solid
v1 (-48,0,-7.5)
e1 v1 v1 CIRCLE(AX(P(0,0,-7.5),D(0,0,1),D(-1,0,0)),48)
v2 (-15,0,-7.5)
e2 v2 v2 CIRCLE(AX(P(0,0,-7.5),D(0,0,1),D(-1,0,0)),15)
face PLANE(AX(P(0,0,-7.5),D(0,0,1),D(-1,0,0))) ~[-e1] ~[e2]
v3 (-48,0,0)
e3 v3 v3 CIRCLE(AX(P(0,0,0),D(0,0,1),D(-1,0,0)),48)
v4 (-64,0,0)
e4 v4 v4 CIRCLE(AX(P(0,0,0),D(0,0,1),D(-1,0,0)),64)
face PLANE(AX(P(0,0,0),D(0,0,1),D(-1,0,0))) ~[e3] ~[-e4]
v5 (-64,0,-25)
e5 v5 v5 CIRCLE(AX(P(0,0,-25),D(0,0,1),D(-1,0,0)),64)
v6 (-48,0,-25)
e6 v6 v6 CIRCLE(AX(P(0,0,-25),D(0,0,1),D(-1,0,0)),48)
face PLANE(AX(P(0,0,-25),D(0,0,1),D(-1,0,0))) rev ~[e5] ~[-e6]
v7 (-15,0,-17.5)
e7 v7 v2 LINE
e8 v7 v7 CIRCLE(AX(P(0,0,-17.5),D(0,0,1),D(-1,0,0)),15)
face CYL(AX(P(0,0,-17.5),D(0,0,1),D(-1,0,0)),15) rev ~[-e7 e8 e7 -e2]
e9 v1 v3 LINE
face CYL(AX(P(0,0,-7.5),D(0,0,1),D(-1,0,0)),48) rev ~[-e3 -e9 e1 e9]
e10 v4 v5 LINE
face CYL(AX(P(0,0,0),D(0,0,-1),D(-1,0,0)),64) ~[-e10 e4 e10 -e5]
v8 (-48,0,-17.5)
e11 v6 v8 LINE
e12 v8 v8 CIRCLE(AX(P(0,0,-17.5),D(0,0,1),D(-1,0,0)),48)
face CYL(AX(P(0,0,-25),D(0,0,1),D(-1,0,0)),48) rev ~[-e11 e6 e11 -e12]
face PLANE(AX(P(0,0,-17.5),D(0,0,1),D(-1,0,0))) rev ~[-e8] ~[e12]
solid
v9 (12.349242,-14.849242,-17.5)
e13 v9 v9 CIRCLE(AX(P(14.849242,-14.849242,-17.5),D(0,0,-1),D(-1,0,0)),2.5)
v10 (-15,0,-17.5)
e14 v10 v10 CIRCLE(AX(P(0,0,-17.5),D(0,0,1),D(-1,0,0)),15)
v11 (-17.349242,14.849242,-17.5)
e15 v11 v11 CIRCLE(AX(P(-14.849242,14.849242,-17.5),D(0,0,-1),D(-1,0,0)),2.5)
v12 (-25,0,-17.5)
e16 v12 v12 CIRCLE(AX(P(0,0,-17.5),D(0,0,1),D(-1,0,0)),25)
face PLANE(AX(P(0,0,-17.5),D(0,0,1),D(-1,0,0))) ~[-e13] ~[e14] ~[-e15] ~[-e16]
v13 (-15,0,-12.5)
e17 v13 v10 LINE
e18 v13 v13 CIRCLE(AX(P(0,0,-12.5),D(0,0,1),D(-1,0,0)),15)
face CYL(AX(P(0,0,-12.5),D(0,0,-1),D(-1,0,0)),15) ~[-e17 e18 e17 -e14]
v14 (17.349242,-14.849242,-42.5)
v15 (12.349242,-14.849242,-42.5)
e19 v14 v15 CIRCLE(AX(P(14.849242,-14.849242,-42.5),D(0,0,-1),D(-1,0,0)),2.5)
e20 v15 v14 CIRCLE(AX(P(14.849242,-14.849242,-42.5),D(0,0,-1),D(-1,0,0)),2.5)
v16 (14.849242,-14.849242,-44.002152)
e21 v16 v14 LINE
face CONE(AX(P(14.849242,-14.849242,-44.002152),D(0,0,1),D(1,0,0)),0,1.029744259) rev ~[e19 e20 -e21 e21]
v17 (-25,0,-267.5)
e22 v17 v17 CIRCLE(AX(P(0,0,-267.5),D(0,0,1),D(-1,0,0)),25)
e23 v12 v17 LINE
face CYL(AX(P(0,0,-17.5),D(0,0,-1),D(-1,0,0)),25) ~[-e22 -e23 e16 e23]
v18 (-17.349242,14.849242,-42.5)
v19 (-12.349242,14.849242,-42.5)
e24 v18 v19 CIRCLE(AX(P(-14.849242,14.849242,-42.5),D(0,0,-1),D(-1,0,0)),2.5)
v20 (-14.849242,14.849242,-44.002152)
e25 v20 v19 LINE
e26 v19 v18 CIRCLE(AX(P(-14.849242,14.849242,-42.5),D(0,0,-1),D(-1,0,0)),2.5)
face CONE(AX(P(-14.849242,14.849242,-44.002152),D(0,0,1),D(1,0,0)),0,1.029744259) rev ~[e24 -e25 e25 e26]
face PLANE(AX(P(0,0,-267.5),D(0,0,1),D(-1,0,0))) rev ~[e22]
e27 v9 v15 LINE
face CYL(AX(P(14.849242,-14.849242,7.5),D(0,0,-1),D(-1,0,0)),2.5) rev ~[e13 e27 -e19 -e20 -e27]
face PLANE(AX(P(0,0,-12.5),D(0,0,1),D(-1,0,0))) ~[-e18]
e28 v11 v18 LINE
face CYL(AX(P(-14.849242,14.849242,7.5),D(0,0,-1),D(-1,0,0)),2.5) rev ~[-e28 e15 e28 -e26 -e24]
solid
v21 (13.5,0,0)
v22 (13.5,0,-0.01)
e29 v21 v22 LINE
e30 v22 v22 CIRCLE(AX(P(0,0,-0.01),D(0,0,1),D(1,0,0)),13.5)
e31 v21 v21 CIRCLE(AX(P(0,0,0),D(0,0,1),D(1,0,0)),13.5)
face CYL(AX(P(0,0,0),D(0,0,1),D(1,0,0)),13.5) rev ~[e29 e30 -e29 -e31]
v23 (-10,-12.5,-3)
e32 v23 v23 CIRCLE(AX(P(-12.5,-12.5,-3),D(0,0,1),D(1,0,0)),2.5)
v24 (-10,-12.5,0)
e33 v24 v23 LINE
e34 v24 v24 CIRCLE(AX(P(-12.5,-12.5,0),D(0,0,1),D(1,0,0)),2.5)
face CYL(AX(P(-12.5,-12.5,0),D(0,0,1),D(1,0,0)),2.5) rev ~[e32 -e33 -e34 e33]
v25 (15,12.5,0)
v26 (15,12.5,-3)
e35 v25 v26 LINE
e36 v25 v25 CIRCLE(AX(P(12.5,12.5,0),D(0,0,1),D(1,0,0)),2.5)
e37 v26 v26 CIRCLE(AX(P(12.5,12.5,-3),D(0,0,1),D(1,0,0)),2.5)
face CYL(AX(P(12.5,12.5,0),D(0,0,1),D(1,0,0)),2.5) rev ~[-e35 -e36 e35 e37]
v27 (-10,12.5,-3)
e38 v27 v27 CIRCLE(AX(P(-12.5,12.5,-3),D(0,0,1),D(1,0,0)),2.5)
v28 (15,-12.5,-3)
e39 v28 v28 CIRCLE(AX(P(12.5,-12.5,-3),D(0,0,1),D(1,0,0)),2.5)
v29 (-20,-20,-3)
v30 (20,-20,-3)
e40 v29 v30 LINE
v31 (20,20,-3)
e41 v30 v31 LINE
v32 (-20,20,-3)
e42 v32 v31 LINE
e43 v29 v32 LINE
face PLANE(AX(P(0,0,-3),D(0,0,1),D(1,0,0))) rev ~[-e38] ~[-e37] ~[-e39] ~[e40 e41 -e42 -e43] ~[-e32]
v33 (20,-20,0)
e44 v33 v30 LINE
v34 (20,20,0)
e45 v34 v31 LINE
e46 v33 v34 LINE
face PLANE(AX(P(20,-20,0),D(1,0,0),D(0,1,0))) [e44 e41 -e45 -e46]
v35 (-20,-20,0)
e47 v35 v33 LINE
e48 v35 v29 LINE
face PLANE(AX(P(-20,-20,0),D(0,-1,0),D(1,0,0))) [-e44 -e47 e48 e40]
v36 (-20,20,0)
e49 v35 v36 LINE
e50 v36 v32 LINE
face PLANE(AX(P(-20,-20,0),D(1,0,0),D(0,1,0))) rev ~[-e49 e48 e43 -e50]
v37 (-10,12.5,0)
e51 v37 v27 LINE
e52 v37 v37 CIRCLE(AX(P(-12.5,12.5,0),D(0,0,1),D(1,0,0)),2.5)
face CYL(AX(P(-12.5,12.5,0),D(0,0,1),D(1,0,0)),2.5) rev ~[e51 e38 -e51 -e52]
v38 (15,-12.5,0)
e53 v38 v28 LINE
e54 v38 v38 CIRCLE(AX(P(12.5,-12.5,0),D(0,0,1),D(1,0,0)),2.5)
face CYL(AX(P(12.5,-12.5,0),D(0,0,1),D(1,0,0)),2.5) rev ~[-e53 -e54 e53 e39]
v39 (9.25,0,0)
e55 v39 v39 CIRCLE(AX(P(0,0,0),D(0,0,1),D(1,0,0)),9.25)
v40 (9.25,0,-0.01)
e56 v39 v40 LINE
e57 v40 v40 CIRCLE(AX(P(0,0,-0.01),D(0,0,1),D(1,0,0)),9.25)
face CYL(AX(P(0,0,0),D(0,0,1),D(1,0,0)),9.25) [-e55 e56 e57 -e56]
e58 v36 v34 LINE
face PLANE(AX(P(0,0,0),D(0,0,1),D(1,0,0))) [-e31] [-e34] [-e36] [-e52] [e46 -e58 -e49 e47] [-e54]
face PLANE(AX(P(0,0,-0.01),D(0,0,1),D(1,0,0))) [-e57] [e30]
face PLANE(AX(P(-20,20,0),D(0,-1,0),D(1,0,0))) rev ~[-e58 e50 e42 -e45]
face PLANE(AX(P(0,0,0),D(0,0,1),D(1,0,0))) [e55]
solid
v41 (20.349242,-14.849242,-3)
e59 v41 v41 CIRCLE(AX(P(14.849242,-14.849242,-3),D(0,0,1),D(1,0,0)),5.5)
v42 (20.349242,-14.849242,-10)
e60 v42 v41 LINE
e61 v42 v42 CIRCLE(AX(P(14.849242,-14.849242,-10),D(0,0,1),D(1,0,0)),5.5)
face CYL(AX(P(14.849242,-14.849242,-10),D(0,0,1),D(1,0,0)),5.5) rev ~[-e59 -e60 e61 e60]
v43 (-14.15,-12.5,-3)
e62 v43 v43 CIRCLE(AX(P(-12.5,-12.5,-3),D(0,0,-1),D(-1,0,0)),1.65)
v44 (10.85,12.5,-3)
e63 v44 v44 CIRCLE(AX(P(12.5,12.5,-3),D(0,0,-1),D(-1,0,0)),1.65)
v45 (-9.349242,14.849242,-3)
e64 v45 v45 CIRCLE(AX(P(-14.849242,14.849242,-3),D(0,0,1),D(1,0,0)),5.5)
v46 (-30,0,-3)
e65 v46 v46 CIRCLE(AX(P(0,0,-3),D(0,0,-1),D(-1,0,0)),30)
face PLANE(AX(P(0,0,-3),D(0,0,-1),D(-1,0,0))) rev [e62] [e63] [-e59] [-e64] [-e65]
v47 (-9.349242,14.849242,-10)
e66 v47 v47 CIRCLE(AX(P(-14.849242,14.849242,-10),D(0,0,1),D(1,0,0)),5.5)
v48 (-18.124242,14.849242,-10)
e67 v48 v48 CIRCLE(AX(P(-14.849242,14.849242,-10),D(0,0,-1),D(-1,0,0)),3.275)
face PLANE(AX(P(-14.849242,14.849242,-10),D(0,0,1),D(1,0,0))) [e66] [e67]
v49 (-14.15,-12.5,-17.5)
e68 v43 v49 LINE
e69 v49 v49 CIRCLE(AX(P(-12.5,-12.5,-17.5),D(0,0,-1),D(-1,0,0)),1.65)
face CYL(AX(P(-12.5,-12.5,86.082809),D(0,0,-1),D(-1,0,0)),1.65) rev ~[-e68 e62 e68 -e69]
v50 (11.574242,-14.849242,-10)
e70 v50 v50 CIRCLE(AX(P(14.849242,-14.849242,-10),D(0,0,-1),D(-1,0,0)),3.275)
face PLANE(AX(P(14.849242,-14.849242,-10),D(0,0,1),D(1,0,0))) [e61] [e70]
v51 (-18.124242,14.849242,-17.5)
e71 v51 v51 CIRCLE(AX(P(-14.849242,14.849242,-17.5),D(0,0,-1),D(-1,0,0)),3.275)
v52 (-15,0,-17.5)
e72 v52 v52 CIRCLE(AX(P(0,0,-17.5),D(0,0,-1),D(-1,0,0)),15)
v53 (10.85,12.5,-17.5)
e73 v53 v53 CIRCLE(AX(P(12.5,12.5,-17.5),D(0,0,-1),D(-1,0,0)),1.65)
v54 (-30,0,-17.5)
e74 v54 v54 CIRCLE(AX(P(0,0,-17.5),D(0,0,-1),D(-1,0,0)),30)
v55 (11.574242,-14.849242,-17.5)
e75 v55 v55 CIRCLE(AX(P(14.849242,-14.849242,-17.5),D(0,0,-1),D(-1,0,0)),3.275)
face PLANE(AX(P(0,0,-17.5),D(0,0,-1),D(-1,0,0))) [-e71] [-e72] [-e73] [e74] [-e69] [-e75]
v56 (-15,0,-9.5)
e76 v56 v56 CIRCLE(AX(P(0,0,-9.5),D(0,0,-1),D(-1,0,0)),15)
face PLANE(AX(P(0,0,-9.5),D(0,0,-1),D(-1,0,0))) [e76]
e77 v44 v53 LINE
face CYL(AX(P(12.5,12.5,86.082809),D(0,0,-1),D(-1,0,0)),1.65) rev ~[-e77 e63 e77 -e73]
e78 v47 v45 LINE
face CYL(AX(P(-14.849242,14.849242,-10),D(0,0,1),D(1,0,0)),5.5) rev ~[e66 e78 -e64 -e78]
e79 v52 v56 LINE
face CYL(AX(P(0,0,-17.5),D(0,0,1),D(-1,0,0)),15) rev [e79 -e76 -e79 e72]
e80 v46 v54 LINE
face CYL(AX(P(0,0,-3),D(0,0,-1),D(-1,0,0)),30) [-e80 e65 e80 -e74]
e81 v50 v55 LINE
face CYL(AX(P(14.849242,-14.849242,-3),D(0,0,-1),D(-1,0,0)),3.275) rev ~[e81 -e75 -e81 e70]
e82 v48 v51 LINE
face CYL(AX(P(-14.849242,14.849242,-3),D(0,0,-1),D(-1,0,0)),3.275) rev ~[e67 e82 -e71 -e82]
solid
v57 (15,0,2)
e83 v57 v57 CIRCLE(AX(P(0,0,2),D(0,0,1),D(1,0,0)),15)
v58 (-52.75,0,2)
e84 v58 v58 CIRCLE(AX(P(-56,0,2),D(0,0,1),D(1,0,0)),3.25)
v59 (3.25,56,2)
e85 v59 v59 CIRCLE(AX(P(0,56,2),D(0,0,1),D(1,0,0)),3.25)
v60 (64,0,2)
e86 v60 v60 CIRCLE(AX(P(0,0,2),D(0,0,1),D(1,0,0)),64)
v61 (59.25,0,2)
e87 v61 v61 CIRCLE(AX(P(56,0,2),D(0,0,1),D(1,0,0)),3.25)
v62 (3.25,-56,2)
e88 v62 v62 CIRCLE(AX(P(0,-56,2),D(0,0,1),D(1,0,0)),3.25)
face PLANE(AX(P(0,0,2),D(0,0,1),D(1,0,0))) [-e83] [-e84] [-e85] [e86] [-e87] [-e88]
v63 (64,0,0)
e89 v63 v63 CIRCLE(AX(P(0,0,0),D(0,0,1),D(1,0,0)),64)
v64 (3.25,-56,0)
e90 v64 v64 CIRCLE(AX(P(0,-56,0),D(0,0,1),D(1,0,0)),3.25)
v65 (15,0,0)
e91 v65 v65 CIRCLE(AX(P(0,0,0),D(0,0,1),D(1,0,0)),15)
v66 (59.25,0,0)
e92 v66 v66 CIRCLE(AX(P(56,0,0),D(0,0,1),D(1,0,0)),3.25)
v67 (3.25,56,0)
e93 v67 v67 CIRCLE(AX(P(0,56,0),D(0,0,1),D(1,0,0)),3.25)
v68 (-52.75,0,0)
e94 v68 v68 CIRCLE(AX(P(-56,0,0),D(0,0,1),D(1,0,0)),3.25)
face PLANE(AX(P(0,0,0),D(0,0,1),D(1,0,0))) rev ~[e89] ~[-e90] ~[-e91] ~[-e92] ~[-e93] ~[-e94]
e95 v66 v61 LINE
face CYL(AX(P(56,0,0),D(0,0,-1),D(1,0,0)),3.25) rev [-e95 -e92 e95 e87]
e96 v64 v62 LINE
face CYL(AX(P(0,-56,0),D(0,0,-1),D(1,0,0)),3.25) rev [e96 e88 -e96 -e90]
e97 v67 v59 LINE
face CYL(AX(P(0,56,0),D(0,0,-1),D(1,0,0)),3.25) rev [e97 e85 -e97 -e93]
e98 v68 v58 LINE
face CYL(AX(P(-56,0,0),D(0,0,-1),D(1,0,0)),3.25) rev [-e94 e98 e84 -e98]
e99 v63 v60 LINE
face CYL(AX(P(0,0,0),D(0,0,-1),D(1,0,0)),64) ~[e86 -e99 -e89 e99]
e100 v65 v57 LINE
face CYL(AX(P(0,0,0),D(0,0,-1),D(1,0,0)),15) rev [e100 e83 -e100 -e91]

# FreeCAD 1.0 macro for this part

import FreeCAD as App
import Part
import Sketcher

V = App.Vector

doc = App.newDocument("Part")
body = doc.addObject("PartDesign::Body", "Body")

# Sketch on XZ plane
sketch1 = doc.addObject("Sketcher::SketchObject", "Sketch")
body.addObject(sketch1)
sketch1.AttachmentSupport = (doc.XZ_Plane, [""])
sketch1.MapMode = "FlatFace"
sketch1.addGeometry([
    Part.LineSegment(V(-25, -18, 0), V(-25, -268, 0)),  # 0
    Part.LineSegment(V(-25, -268, 0), V(0, -268, 0)),  # 1
    Part.LineSegment(V(0, -268, 0), V(0, -12, 0)),  # 2
    Part.LineSegment(V(0, -12, 0), V(-15, -12, 0)),  # 3
    Part.LineSegment(V(-15, -12, 0), V(-15, -18, 0)),  # 4
    Part.LineSegment(V(-15, -18, 0), V(-25, -18, 0)),  # 5
], False)
sketch1.addConstraint([
    Sketcher.Constraint("Coincident", 0, 2, 1, 1),
    Sketcher.Constraint("Coincident", 1, 2, 2, 1),
    Sketcher.Constraint("Coincident", 2, 2, 3, 1),
    Sketcher.Constraint("Coincident", 3, 2, 4, 1),
    Sketcher.Constraint("Coincident", 4, 2, 5, 1),
    Sketcher.Constraint("Coincident", 5, 2, 0, 1),
    Sketcher.Constraint("Vertical", 0),
    Sketcher.Constraint("Horizontal", 1),
    Sketcher.Constraint("Vertical", 2),
    Sketcher.Constraint("Horizontal", 3),
    Sketcher.Constraint("Vertical", 4),
    Sketcher.Constraint("Horizontal", 5),
    Sketcher.Constraint("PointOnObject", 1, 2, -2),
    Sketcher.Constraint("DistanceX", 1, 1, 1, 2, 25.0),
    Sketcher.Constraint("DistanceX", 3, 2, 3, 1, 15.0),
    Sketcher.Constraint("DistanceY", 0, 2, 0, 1, 250.0),
    Sketcher.Constraint("DistanceY", 2, 1, 2, 2, 255.0),
    Sketcher.Constraint("DistanceY", 0, 2, -1, 1, 267.5),
])
revolution = doc.addObject("PartDesign::Revolution", "Revolution")
body.addObject(revolution)
revolution.Profile = sketch1
revolution.ReferenceAxis = (sketch1, ["V_Axis"])
revolution.Angle = 360

# Sketch on XY plane
sketch2 = doc.addObject("Sketcher::SketchObject", "Sketch001")
body.addObject(sketch2)
sketch2.AttachmentSupport = (doc.XY_Plane, [""])
sketch2.MapMode = "FlatFace"
sketch2.AttachmentOffset = App.Placement(V(0, 0, -17.5), App.Rotation())
sketch2.addGeometry([
    Part.Circle(V(14.8, -14.8, 0), V(0, 0, 1), 2.5),
    Part.Circle(V(-14.8, 14.8, 0), V(0, 0, 1), 2.5),
], False)
sketch2.addConstraint([
    Sketcher.Constraint("Equal", 0, 1),
    Sketcher.Constraint("Symmetric", 0, 3, 1, 3, -1, 1),
    Sketcher.Constraint("Diameter", 0, 5.0),
    Sketcher.Constraint("DistanceX", -1, 1, 0, 3, 14.849242),
    Sketcher.Constraint("DistanceY", 0, 3, -1, 1, 14.849242),
])
doc.recompute()
hole = doc.addObject("PartDesign::Hole", "Hole")
body.addObject(hole)
hole.Profile = sketch2
hole.ThreadType = "None"
hole.Diameter = 5
hole.DepthType = "Dimension"
hole.Depth = 25
hole.DrillPoint = "Angled"
hole.DrillPointAngle = 118
body2 = doc.addObject("PartDesign::Body", "Body001")

# Sketch on XZ plane
sketch3 = doc.addObject("Sketcher::SketchObject", "Sketch002")
body2.addObject(sketch3)
sketch3.AttachmentSupport = (doc.getObject("XZ_Plane001"), [""])
sketch3.MapMode = "FlatFace"
sketch3.addGeometry([
    Part.LineSegment(V(-48, 0, 0), V(-64, 0, 0)),  # 0
    Part.LineSegment(V(-64, 0, 0), V(-64, -25, 0)),  # 1
    Part.LineSegment(V(-64, -25, 0), V(-48, -25, 0)),  # 2
    Part.LineSegment(V(-48, -25, 0), V(-48, -18, 0)),  # 3
    Part.LineSegment(V(-48, -18, 0), V(-15, -18, 0)),  # 4
    Part.LineSegment(V(-15, -18, 0), V(-15, -8, 0)),  # 5
    Part.LineSegment(V(-15, -8, 0), V(-48, -8, 0)),  # 6
    Part.LineSegment(V(-48, -8, 0), V(-48, 0, 0)),  # 7
], False)
sketch3.addConstraint([
    Sketcher.Constraint("Coincident", 0, 2, 1, 1),
    Sketcher.Constraint("Coincident", 1, 2, 2, 1),
    Sketcher.Constraint("Coincident", 2, 2, 3, 1),
    Sketcher.Constraint("Coincident", 3, 2, 4, 1),
    Sketcher.Constraint("Coincident", 4, 2, 5, 1),
    Sketcher.Constraint("Coincident", 5, 2, 6, 1),
    Sketcher.Constraint("Coincident", 6, 2, 7, 1),
    Sketcher.Constraint("Coincident", 7, 2, 0, 1),
    Sketcher.Constraint("Horizontal", 0),
    Sketcher.Constraint("Vertical", 1),
    Sketcher.Constraint("Horizontal", 2),
    Sketcher.Constraint("Vertical", 3),
    Sketcher.Constraint("Horizontal", 4),
    Sketcher.Constraint("Vertical", 5),
    Sketcher.Constraint("Horizontal", 6),
    Sketcher.Constraint("Vertical", 7),
    Sketcher.Constraint("PointOnObject", 0, 2, -1),
    Sketcher.Constraint("Vertical", 3, 2, 6, 2),
    Sketcher.Constraint("Equal", 3, 7),
    Sketcher.Constraint("DistanceX", 0, 2, 0, 1, 16.0),
    Sketcher.Constraint("DistanceX", 4, 1, 4, 2, 33.0),
    Sketcher.Constraint("DistanceY", 1, 2, 1, 1, 25.0),
    Sketcher.Constraint("DistanceY", 5, 1, 5, 2, 10.0),
    Sketcher.Constraint("DistanceX", 0, 2, -1, 1, 64.0),
])
revolution2 = doc.addObject("PartDesign::Revolution", "Revolution001")
body2.addObject(revolution2)
revolution2.Profile = sketch3
revolution2.ReferenceAxis = (sketch3, ["V_Axis"])
revolution2.Angle = 360
body3 = doc.addObject("PartDesign::Body", "Body002")

# Sketch on XY plane
sketch4 = doc.addObject("Sketcher::SketchObject", "Sketch003")
body3.addObject(sketch4)
sketch4.AttachmentSupport = (doc.getObject("XY_Plane002"), [""])
sketch4.MapMode = "FlatFace"
sketch4.addGeometry([
    Part.LineSegment(V(-20, 20, 0), V(-20, -20, 0)),  # 0
    Part.LineSegment(V(-20, -20, 0), V(20, -20, 0)),  # 1
    Part.LineSegment(V(20, -20, 0), V(20, 20, 0)),  # 2
    Part.LineSegment(V(20, 20, 0), V(-20, 20, 0)),  # 3
    Part.Circle(V(-12.5, -12.5, 0), V(0, 0, 1), 2.5),  # 4
    Part.Circle(V(12.5, -12.5, 0), V(0, 0, 1), 2.5),  # 5
    Part.Circle(V(-12.5, 12.5, 0), V(0, 0, 1), 2.5),  # 6
    Part.Circle(V(12.5, 12.5, 0), V(0, 0, 1), 2.5),  # 7
], False)
sketch4.addConstraint([
    Sketcher.Constraint("Coincident", 0, 2, 1, 1),
    Sketcher.Constraint("Coincident", 1, 2, 2, 1),
    Sketcher.Constraint("Coincident", 2, 2, 3, 1),
    Sketcher.Constraint("Coincident", 3, 2, 0, 1),
    Sketcher.Constraint("Vertical", 0),
    Sketcher.Constraint("Horizontal", 1),
    Sketcher.Constraint("Vertical", 2),
    Sketcher.Constraint("Horizontal", 3),
    Sketcher.Constraint("Equal", 4, 5),
    Sketcher.Constraint("Equal", 5, 6),
    Sketcher.Constraint("Equal", 6, 7),
    Sketcher.Constraint("Symmetric", 5, 3, 6, 3, -1, 1),
    Sketcher.Constraint("Symmetric", 4, 3, 7, 3, -1, 1),
    Sketcher.Constraint("Symmetric", 0, 2, 2, 2, -1, 1),
    Sketcher.Constraint("Symmetric", 4, 3, 5, 3, -2),
    Sketcher.Constraint("Equal", 3, 0),
    Sketcher.Constraint("Diameter", 4, 5.0),
    Sketcher.Constraint("DistanceX", 1, 1, 1, 2, 40.0),
    Sketcher.Constraint("DistanceX", 4, 3, 5, 3, 25.0),
    Sketcher.Constraint("DistanceY", 4, 3, 6, 3, 25.0),
])
pad1 = doc.addObject("PartDesign::Pad", "Pad")
body3.addObject(pad1)
pad1.Profile = sketch4
pad1.Length = 3
pad1.Reversed = True

# Sketch on XY plane
sketch5 = doc.addObject("Sketcher::SketchObject", "Sketch004")
body3.addObject(sketch5)
sketch5.AttachmentSupport = (doc.getObject("XY_Plane002"), [""])
sketch5.MapMode = "FlatFace"
sketch5.addGeometry([
    Part.Circle(V(0, 0, 0), V(0, 0, 1), 14),
    Part.Circle(V(0, 0, 0), V(0, 0, 1), 9),
], False)
sketch5.addConstraint([
    Sketcher.Constraint("Coincident", 0, 3, -1, 1),
    Sketcher.Constraint("Coincident", 1, 3, -1, 1),
    Sketcher.Constraint("Diameter", 0, 27.0),
    Sketcher.Constraint("Diameter", 1, 18.5),
])
pocket1 = doc.addObject("PartDesign::Pocket", "Pocket")
body3.addObject(pocket1)
pocket1.Profile = sketch5
pocket1.Length = 0.01
body4 = doc.addObject("PartDesign::Body", "Body003")

# Sketch on XY plane
sketch6 = doc.addObject("Sketcher::SketchObject", "Sketch005")
body4.addObject(sketch6)
sketch6.AttachmentSupport = (doc.getObject("XY_Plane003"), [""])
sketch6.MapMode = "FlatFace"
sketch6.addGeometry([
    Part.Circle(V(0, 0, 0), V(0, 0, 1), 64),  # 0
    Part.Circle(V(0, -56, 0), V(0, 0, 1), 3.2),  # 1
    Part.Circle(V(-56, 0, 0), V(0, 0, 1), 3.2),  # 2
    Part.Circle(V(0, 0, 0), V(0, 0, 1), 15),  # 3
    Part.Circle(V(56, 0, 0), V(0, 0, 1), 3.2),  # 4
    Part.Circle(V(0, 56, 0), V(0, 0, 1), 3.2),  # 5
], False)
sketch6.addConstraint([
    Sketcher.Constraint("Coincident", 0, 3, -1, 1),
    Sketcher.Constraint("Coincident", 3, 3, -1, 1),
    Sketcher.Constraint("Equal", 1, 2),
    Sketcher.Constraint("Equal", 2, 4),
    Sketcher.Constraint("Equal", 4, 5),
    Sketcher.Constraint("Symmetric", 2, 3, 4, 3, -1, 1),
    Sketcher.Constraint("Symmetric", 1, 3, 5, 3, -1, 1),
    Sketcher.Constraint("PointOnObject", 1, 3, -2),
    Sketcher.Constraint("PointOnObject", 2, 3, -1),
    Sketcher.Constraint("Diameter", 0, 128.0),
    Sketcher.Constraint("Diameter", 3, 30.0),
    Sketcher.Constraint("Diameter", 1, 6.5),
    Sketcher.Constraint("DistanceY", 1, 3, -1, 1, 56.0),
    Sketcher.Constraint("DistanceX", 2, 3, -1, 1, 56.0),
])
pad2 = doc.addObject("PartDesign::Pad", "Pad001")
body4.addObject(pad2)
pad2.Profile = sketch6
pad2.Length = 2
body5 = doc.addObject("PartDesign::Body", "Body004")

# Sketch on XZ plane
sketch7 = doc.addObject("Sketcher::SketchObject", "Sketch006")
body5.addObject(sketch7)
sketch7.AttachmentSupport = (doc.getObject("XZ_Plane004"), [""])
sketch7.MapMode = "FlatFace"
sketch7.addGeometry([
    Part.LineSegment(V(0, -3, 0), V(-30, -3, 0)),  # 0
    Part.LineSegment(V(-30, -3, 0), V(-30, -18, 0)),  # 1
    Part.LineSegment(V(-30, -18, 0), V(-15, -18, 0)),  # 2
    Part.LineSegment(V(-15, -18, 0), V(-15, -10, 0)),  # 3
    Part.LineSegment(V(-15, -10, 0), V(0, -10, 0)),  # 4
    Part.LineSegment(V(0, -10, 0), V(0, -3, 0)),  # 5
], False)
sketch7.addConstraint([
    Sketcher.Constraint("Coincident", 0, 2, 1, 1),
    Sketcher.Constraint("Coincident", 1, 2, 2, 1),
    Sketcher.Constraint("Coincident", 2, 2, 3, 1),
    Sketcher.Constraint("Coincident", 3, 2, 4, 1),
    Sketcher.Constraint("Coincident", 4, 2, 5, 1),
    Sketcher.Constraint("Coincident", 5, 2, 0, 1),
    Sketcher.Constraint("Horizontal", 0),
    Sketcher.Constraint("Vertical", 1),
    Sketcher.Constraint("Horizontal", 2),
    Sketcher.Constraint("Vertical", 3),
    Sketcher.Constraint("Horizontal", 4),
    Sketcher.Constraint("Vertical", 5),
    Sketcher.Constraint("PointOnObject", 4, 2, -2),
    Sketcher.Constraint("Equal", 2, 4),
    Sketcher.Constraint("DistanceX", 0, 2, 0, 1, 30.0),
    Sketcher.Constraint("DistanceY", 3, 1, 3, 2, 8.0),
    Sketcher.Constraint("DistanceY", 1, 2, 1, 1, 14.5),
    Sketcher.Constraint("DistanceY", 0, 2, -1, 1, 3.0),
])
revolution3 = doc.addObject("PartDesign::Revolution", "Revolution002")
body5.addObject(revolution3)
revolution3.Profile = sketch7
revolution3.ReferenceAxis = (sketch7, ["V_Axis"])
revolution3.Angle = 360

# Sketch on XY plane
sketch8 = doc.addObject("Sketcher::SketchObject", "Sketch007")
body5.addObject(sketch8)
sketch8.AttachmentSupport = (doc.getObject("XY_Plane004"), [""])
sketch8.MapMode = "FlatFace"
sketch8.addGeometry([
    Part.Circle(V(-12.5, -12.5, 0), V(0, 0, 1), 1.6),
    Part.Circle(V(12.5, 12.5, 0), V(0, 0, 1), 1.6),
], False)
sketch8.addConstraint([
    Sketcher.Constraint("Equal", 0, 1),
    Sketcher.Constraint("Symmetric", 0, 3, 1, 3, -1, 1),
    Sketcher.Constraint("Diameter", 0, 3.3),
    Sketcher.Constraint("DistanceX", 0, 3, 1, 3, 25.0),
    Sketcher.Constraint("DistanceY", 0, 3, 1, 3, 25.0),
])
doc.recompute()
hole2 = doc.addObject("PartDesign::Hole", "Hole001")
body5.addObject(hole2)
hole2.Profile = sketch8
hole2.ThreadType = "None"
hole2.Diameter = 3.3
hole2.DepthType = "ThroughAll"

# Sketch on XY plane
sketch9 = doc.addObject("Sketcher::SketchObject", "Sketch008")
body5.addObject(sketch9)
sketch9.AttachmentSupport = (doc.getObject("XY_Plane004"), [""])
sketch9.MapMode = "FlatFace"
sketch9.AttachmentOffset = App.Placement(V(0, 0, -3), App.Rotation())
sketch9.addGeometry([
    Part.Circle(V(-14.8, 14.8, 0), V(0, 0, 1), 3.3),
    Part.Circle(V(14.8, -14.8, 0), V(0, 0, 1), 3.3),
], False)
sketch9.addConstraint([
    Sketcher.Constraint("Equal", 0, 1),
    Sketcher.Constraint("Symmetric", 0, 3, 1, 3, -1, 1),
    Sketcher.Constraint("Diameter", 0, 6.55),
    Sketcher.Constraint("DistanceX", 0, 3, -1, 1, 14.849242),
    Sketcher.Constraint("DistanceY", -1, 1, 0, 3, 14.849242),
])
doc.recompute()
hole3 = doc.addObject("PartDesign::Hole", "Hole002")
body5.addObject(hole3)
hole3.Profile = sketch9
hole3.ThreadType = "None"
hole3.Diameter = 6.55
hole3.DepthType = "ThroughAll"
hole3.HoleCutType = "Counterbore"
hole3.HoleCutDiameter = 11
hole3.HoleCutDepth = 7

doc.recompute()
